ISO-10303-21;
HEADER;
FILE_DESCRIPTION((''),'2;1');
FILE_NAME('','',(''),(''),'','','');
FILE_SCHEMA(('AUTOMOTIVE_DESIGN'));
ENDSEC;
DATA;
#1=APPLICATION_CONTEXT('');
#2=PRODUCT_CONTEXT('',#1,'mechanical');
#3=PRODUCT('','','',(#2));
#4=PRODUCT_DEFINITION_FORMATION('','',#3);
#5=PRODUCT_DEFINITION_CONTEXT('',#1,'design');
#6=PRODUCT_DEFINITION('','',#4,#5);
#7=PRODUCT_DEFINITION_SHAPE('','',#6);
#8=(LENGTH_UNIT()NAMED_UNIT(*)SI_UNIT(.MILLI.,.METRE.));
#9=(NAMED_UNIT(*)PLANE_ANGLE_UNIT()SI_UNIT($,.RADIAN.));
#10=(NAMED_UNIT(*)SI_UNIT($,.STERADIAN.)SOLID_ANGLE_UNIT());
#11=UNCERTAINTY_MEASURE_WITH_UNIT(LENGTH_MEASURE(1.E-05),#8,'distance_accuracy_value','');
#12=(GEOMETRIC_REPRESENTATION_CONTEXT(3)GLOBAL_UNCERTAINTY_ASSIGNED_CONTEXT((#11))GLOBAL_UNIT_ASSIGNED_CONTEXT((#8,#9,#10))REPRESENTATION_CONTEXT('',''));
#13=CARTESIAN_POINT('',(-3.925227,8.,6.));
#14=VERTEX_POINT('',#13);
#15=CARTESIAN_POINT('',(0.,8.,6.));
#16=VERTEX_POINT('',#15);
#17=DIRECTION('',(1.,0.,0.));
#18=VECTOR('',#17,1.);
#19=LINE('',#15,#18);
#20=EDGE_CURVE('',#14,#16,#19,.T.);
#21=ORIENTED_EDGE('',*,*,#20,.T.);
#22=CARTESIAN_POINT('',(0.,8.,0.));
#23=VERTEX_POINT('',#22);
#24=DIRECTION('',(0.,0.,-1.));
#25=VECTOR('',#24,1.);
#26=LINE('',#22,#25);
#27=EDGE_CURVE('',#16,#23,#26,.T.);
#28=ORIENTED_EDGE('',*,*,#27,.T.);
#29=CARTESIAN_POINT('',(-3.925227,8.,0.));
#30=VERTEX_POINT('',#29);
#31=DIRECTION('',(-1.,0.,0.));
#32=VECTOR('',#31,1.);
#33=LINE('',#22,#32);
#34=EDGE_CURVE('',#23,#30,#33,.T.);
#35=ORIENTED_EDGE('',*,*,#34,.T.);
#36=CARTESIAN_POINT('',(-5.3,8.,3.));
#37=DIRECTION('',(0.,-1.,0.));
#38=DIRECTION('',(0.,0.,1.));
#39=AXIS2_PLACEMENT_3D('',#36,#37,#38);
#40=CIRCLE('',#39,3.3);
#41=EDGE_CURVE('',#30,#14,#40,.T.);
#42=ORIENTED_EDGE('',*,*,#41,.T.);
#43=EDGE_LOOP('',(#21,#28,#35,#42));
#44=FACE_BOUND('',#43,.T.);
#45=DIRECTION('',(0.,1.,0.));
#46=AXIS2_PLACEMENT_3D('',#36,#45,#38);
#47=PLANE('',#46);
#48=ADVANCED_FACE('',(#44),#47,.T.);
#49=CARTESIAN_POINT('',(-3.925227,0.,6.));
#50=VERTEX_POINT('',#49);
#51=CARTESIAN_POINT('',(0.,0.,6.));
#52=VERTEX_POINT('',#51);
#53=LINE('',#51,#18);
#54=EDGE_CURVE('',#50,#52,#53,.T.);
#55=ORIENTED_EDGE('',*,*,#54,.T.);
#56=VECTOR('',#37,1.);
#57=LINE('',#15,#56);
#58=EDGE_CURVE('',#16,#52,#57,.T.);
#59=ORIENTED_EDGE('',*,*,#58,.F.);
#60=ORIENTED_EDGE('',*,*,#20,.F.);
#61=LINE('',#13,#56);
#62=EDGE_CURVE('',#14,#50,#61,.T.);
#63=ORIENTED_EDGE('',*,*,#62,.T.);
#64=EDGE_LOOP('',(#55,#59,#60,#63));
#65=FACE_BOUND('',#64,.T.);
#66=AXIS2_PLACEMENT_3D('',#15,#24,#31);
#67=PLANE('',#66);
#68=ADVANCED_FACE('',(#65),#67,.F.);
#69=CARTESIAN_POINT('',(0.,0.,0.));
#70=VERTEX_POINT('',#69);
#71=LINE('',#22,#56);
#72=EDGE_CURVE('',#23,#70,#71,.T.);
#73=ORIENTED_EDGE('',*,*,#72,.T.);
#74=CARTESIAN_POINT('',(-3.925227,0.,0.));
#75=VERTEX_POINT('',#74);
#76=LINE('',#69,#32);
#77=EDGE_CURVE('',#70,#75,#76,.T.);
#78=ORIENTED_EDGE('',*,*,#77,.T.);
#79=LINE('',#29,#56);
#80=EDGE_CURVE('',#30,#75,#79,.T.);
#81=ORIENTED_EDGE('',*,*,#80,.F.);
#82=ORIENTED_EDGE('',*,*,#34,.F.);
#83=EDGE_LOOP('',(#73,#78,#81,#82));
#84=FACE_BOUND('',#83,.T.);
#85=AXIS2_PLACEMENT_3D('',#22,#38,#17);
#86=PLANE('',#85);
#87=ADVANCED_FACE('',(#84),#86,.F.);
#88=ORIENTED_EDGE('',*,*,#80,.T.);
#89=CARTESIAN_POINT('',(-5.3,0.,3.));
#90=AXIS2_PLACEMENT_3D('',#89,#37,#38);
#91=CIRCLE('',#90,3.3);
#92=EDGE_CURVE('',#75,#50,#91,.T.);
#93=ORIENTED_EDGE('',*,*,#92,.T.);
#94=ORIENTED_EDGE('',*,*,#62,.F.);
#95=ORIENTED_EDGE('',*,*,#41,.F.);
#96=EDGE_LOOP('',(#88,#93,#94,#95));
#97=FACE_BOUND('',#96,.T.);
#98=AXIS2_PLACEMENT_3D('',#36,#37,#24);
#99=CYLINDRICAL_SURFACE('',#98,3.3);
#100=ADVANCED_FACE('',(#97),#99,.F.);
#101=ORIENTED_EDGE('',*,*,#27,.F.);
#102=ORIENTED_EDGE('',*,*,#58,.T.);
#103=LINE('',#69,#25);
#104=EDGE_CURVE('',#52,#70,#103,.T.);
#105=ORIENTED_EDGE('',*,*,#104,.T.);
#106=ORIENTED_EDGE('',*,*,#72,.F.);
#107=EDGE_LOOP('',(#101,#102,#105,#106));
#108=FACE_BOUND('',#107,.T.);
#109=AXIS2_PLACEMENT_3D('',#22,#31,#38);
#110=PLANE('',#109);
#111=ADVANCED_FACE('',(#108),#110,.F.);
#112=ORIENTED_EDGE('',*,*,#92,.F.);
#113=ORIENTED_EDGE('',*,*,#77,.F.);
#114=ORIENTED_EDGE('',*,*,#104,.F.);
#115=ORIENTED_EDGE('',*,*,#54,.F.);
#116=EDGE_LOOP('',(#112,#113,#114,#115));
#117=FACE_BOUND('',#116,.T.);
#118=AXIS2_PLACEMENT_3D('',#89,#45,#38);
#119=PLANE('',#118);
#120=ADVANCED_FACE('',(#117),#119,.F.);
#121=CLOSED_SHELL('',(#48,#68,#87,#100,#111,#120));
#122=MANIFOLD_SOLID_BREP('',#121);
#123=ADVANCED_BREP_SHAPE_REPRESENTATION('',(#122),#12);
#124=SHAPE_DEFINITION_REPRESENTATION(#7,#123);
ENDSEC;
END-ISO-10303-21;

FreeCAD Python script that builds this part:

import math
import FreeCAD as App
import Part
import Sketcher
from FreeCAD import Vector
Q = App.Units.Quantity

doc = App.newDocument("Part")
body = doc.addObject("PartDesign::Body", "Body")

sketch1 = doc.addObject("Sketcher::SketchObject", "Sketch")
body.addObject(sketch1)
sketch1.AttachmentSupport = (doc.XZ_Plane, [""])
sketch1.MapMode = "FlatFace"
sketch1.addGeometry([
    Part.LineSegment(Vector(0, 6, 0), Vector(0, 0, 0)),
    Part.LineSegment(Vector(0, 0, 0), Vector(-3.9, 0, 0)),
    Part.ArcOfCircle(Part.Circle(Vector(-5.3, 3, 0), Vector(0, 0, 1), 3.3), math.radians(-65), math.radians(65)),
    Part.LineSegment(Vector(-3.9, 6, 0), Vector(0, 6, 0)),
], False)
sketch1.addConstraint([
    Sketcher.Constraint("Coincident", 0, 2, 1, 1),
    Sketcher.Constraint("Coincident", 1, 2, 2, 1),
    Sketcher.Constraint("Coincident", 2, 2, 3, 1),
    Sketcher.Constraint("Coincident", 3, 2, 0, 1),
    Sketcher.Constraint("Vertical", 0),
    Sketcher.Constraint("Horizontal", 1),
    Sketcher.Constraint("Horizontal", 3),
    Sketcher.Constraint("Coincident", 0, 2, -1, 1),
    Sketcher.Constraint("Vertical", 1, 2, 2, 2),
    Sketcher.Constraint("Radius", 2, Q("3.3 mm")),
    Sketcher.Constraint("DistanceY", 0, 2, 0, 1, Q("6 mm")),
    Sketcher.Constraint("DistanceX", 2, 3, -1, 1, Q("5.3 mm")),
])
pad1 = doc.addObject("PartDesign::Pad", "Pad")
body.addObject(pad1)
pad1.Profile = sketch1
pad1.Length = 8
pad1.Reversed = True

doc.recompute()
